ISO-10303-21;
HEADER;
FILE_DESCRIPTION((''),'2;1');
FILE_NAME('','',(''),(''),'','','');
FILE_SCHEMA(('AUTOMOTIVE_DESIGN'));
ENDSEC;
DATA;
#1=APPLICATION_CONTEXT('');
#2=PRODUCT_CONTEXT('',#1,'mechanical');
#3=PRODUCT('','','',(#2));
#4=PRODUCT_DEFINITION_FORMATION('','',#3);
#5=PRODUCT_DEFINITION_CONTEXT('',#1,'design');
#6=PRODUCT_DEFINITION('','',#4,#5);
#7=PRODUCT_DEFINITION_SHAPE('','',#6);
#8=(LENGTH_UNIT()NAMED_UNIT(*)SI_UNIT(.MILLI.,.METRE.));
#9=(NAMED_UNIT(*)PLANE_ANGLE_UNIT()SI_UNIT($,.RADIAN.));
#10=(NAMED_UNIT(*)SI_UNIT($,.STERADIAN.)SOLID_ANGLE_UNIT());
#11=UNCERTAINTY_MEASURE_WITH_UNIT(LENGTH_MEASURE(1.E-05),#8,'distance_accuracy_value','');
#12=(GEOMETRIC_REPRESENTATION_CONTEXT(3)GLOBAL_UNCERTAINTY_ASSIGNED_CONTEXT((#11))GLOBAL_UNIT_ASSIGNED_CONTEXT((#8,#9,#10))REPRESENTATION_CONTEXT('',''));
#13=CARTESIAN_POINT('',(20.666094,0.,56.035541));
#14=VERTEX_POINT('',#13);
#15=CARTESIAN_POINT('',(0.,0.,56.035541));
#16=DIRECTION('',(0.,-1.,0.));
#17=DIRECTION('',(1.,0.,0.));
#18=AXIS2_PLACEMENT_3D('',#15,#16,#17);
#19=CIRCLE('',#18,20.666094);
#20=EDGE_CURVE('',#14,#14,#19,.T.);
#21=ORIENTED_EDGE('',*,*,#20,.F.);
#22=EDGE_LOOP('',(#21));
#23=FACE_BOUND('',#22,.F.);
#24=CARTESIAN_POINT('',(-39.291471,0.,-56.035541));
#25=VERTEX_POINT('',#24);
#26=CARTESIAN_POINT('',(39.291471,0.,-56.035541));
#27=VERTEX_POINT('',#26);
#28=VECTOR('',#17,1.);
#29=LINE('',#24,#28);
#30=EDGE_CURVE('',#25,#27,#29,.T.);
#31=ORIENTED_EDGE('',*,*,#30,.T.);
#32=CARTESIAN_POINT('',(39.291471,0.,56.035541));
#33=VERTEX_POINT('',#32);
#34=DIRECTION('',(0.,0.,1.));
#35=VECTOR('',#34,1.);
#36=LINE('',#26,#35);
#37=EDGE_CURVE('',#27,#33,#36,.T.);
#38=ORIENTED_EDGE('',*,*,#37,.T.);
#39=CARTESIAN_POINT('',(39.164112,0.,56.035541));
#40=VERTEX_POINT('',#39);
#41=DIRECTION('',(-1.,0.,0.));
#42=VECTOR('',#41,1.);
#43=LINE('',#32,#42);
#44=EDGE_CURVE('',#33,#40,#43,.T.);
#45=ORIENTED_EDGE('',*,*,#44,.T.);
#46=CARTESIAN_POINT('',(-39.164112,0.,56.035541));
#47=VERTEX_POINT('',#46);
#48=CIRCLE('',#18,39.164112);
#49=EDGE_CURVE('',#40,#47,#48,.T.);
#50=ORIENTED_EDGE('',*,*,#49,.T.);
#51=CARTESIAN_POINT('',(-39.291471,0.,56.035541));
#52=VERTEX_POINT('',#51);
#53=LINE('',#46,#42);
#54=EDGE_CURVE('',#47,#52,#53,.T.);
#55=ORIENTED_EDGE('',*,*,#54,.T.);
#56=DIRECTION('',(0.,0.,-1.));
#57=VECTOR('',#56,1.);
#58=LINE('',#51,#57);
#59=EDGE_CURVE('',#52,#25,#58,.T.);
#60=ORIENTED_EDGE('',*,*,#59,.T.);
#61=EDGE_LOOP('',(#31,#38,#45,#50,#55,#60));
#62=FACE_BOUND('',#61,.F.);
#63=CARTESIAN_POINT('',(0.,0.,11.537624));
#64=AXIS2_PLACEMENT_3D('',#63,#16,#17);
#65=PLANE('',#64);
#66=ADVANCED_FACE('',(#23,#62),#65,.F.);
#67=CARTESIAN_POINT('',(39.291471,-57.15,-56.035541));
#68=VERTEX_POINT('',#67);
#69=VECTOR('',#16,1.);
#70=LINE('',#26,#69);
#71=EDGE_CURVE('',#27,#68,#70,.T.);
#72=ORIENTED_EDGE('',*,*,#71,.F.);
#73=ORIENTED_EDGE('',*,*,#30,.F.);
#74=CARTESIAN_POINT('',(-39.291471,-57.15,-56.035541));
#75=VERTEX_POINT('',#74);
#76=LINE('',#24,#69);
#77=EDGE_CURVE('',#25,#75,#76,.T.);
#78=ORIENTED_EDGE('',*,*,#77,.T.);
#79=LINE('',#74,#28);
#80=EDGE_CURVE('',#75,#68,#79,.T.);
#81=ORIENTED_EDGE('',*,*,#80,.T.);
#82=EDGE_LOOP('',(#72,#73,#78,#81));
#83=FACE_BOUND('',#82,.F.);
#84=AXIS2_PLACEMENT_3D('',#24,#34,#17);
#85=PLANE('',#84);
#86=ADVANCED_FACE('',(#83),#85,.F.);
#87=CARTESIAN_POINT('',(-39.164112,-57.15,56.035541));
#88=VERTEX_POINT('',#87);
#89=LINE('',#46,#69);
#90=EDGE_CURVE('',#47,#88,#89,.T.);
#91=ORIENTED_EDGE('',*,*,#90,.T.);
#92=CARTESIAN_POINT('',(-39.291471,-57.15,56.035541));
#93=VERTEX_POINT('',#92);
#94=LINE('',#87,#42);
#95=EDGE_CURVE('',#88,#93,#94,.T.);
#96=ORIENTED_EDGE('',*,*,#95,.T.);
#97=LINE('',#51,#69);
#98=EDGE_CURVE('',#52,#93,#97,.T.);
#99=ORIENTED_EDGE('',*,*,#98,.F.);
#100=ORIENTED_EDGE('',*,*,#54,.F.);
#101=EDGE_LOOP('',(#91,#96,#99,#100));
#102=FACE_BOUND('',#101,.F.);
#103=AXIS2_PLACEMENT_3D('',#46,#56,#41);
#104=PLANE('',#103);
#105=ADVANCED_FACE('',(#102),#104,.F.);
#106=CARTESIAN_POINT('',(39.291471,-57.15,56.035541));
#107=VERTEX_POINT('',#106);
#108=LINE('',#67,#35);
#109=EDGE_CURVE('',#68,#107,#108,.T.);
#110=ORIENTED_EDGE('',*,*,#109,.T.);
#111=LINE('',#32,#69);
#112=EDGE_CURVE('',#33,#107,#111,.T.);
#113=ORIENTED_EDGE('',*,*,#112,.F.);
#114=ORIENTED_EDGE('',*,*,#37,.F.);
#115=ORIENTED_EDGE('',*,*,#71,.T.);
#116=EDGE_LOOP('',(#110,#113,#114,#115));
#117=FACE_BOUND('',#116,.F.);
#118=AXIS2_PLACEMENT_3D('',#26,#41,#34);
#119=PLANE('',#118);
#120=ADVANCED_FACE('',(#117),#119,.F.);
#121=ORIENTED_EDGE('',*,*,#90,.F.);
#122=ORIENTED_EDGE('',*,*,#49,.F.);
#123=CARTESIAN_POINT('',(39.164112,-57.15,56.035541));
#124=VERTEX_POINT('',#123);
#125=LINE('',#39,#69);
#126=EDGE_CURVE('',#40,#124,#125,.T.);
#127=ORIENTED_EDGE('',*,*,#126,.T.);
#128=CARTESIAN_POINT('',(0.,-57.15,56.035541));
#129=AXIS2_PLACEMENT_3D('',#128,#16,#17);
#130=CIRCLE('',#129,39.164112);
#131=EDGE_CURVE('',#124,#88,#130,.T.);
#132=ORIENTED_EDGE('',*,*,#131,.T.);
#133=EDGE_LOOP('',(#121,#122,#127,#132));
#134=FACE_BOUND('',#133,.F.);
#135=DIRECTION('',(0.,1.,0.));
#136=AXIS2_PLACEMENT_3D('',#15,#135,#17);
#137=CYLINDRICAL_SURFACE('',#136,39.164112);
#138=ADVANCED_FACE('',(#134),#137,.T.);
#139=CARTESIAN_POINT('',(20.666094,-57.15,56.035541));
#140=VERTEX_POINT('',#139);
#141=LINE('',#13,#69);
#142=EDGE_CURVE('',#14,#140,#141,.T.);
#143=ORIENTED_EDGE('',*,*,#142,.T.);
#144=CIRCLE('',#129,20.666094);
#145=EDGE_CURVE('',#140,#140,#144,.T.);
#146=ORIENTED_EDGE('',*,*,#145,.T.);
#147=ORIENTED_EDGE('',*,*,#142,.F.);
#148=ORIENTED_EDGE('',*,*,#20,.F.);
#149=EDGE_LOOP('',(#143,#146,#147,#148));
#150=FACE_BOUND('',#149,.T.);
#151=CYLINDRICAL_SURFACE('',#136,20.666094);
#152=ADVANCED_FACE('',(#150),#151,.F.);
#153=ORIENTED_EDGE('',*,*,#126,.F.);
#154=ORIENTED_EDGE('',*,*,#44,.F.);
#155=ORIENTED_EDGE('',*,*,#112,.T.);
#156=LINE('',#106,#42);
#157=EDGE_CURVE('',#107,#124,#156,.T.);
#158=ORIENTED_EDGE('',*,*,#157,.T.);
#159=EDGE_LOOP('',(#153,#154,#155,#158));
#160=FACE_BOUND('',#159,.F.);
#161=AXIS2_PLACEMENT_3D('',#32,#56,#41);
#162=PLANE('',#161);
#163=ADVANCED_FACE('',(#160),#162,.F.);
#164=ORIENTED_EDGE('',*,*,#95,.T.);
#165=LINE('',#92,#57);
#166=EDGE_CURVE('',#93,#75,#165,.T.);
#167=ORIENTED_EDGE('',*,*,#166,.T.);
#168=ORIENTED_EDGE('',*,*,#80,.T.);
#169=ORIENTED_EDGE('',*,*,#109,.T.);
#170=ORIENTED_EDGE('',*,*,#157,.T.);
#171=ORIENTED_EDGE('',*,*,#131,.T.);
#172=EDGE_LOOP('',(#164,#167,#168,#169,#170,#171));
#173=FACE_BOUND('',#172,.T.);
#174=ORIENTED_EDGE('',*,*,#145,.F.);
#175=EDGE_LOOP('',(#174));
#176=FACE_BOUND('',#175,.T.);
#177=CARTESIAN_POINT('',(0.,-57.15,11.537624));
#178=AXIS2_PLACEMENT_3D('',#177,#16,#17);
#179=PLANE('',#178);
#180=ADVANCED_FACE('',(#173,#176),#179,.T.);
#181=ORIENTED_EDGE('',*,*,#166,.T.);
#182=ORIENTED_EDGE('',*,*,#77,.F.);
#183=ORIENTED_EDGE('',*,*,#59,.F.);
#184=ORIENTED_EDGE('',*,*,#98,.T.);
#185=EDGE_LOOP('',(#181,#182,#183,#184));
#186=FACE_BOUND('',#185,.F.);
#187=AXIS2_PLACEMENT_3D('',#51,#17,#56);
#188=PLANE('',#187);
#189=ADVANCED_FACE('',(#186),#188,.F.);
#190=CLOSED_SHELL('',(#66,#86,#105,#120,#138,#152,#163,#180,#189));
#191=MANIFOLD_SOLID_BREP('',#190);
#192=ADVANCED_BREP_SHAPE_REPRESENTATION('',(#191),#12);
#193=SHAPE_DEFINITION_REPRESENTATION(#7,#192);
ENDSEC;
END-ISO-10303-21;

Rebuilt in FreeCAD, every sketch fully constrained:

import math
import FreeCAD as App
import Part
import Sketcher

doc = App.newDocument("Part")
params = doc.addObject("Spreadsheet::Sheet", "Params")
for row, (alias, value) in enumerate([
    ("pad1_length", "2.25 in"),
], start=1):
    params.set(f"A{row}", alias)
    params.set(f"B{row}", "=" + value)
    params.setAlias(f"B{row}", alias)

body = doc.addObject("PartDesign::Body", "Body")

# Sketch on XZ plane
sketch1 = body.newObject("Sketcher::SketchObject", "Sketch")
sketch1.AttachmentSupport = (doc.getObject("XZ_Plane"), [""])
sketch1.MapMode = "FlatFace"
sketch1.addGeometry([
    Part.LineSegment(App.Vector(-39.291471, -56.035541, 0), App.Vector(39.291471, -56.035541, 0)),  # 0
    Part.LineSegment(App.Vector(39.291471, -56.035541, 0), App.Vector(39.291471, 56.035541, 0)),  # 1
    Part.LineSegment(App.Vector(39.291471, 56.035541, 0), App.Vector(39.164112, 56.035541, 0)),  # 2
    Part.ArcOfCircle(Part.Circle(App.Vector(0, 56.035541, 0), App.Vector(0, 0, 1), 39.164112), math.radians(0), math.radians(180)),  # 3
    Part.LineSegment(App.Vector(-39.164112, 56.035541, 0), App.Vector(-39.291471, 56.035541, 0)),  # 4
    Part.LineSegment(App.Vector(-39.291471, 56.035541, 0), App.Vector(-39.291471, -56.035541, 0)),  # 5
    Part.Circle(App.Vector(0, 56.035541, 0), App.Vector(0, 0, 1), 20.666094),  # 6
], False)
sketch1.addConstraint([
    Sketcher.Constraint("Coincident", 0, 2, 1, 1),
    Sketcher.Constraint("Coincident", 1, 2, 2, 1),
    Sketcher.Constraint("Coincident", 2, 2, 3, 1),
    Sketcher.Constraint("Coincident", 3, 2, 4, 1),
    Sketcher.Constraint("Coincident", 4, 2, 5, 1),
    Sketcher.Constraint("Coincident", 5, 2, 0, 1),
    Sketcher.Constraint("Horizontal", 0),
    Sketcher.Constraint("Vertical", 1),
    Sketcher.Constraint("Horizontal", 2),
    Sketcher.Constraint("Horizontal", 4),
    Sketcher.Constraint("Vertical", 5),
    Sketcher.Constraint("Coincident", 6, 3, 3, 3),
    Sketcher.Constraint("Symmetric", 0, 2, 4, 2, -1, 1),
    Sketcher.Constraint("Symmetric", 2, 2, 3, 2, -2),
    Sketcher.Constraint("Horizontal", 6, 3, 1, 2),
    Sketcher.Constraint("Diameter", 6, 41.332188),
    Sketcher.Constraint("Radius", 3, 39.164112),
    Sketcher.Constraint("DistanceX", 2, 2, 2, 1, 0.127359),
    Sketcher.Constraint("DistanceY", 1, 1, 1, 2, 112.071082),
])
pad1 = body.newObject("PartDesign::Pad", "Pad")
pad1.Profile = sketch1
pad1.setExpression("Length", "Params.pad1_length")

doc.recompute()
